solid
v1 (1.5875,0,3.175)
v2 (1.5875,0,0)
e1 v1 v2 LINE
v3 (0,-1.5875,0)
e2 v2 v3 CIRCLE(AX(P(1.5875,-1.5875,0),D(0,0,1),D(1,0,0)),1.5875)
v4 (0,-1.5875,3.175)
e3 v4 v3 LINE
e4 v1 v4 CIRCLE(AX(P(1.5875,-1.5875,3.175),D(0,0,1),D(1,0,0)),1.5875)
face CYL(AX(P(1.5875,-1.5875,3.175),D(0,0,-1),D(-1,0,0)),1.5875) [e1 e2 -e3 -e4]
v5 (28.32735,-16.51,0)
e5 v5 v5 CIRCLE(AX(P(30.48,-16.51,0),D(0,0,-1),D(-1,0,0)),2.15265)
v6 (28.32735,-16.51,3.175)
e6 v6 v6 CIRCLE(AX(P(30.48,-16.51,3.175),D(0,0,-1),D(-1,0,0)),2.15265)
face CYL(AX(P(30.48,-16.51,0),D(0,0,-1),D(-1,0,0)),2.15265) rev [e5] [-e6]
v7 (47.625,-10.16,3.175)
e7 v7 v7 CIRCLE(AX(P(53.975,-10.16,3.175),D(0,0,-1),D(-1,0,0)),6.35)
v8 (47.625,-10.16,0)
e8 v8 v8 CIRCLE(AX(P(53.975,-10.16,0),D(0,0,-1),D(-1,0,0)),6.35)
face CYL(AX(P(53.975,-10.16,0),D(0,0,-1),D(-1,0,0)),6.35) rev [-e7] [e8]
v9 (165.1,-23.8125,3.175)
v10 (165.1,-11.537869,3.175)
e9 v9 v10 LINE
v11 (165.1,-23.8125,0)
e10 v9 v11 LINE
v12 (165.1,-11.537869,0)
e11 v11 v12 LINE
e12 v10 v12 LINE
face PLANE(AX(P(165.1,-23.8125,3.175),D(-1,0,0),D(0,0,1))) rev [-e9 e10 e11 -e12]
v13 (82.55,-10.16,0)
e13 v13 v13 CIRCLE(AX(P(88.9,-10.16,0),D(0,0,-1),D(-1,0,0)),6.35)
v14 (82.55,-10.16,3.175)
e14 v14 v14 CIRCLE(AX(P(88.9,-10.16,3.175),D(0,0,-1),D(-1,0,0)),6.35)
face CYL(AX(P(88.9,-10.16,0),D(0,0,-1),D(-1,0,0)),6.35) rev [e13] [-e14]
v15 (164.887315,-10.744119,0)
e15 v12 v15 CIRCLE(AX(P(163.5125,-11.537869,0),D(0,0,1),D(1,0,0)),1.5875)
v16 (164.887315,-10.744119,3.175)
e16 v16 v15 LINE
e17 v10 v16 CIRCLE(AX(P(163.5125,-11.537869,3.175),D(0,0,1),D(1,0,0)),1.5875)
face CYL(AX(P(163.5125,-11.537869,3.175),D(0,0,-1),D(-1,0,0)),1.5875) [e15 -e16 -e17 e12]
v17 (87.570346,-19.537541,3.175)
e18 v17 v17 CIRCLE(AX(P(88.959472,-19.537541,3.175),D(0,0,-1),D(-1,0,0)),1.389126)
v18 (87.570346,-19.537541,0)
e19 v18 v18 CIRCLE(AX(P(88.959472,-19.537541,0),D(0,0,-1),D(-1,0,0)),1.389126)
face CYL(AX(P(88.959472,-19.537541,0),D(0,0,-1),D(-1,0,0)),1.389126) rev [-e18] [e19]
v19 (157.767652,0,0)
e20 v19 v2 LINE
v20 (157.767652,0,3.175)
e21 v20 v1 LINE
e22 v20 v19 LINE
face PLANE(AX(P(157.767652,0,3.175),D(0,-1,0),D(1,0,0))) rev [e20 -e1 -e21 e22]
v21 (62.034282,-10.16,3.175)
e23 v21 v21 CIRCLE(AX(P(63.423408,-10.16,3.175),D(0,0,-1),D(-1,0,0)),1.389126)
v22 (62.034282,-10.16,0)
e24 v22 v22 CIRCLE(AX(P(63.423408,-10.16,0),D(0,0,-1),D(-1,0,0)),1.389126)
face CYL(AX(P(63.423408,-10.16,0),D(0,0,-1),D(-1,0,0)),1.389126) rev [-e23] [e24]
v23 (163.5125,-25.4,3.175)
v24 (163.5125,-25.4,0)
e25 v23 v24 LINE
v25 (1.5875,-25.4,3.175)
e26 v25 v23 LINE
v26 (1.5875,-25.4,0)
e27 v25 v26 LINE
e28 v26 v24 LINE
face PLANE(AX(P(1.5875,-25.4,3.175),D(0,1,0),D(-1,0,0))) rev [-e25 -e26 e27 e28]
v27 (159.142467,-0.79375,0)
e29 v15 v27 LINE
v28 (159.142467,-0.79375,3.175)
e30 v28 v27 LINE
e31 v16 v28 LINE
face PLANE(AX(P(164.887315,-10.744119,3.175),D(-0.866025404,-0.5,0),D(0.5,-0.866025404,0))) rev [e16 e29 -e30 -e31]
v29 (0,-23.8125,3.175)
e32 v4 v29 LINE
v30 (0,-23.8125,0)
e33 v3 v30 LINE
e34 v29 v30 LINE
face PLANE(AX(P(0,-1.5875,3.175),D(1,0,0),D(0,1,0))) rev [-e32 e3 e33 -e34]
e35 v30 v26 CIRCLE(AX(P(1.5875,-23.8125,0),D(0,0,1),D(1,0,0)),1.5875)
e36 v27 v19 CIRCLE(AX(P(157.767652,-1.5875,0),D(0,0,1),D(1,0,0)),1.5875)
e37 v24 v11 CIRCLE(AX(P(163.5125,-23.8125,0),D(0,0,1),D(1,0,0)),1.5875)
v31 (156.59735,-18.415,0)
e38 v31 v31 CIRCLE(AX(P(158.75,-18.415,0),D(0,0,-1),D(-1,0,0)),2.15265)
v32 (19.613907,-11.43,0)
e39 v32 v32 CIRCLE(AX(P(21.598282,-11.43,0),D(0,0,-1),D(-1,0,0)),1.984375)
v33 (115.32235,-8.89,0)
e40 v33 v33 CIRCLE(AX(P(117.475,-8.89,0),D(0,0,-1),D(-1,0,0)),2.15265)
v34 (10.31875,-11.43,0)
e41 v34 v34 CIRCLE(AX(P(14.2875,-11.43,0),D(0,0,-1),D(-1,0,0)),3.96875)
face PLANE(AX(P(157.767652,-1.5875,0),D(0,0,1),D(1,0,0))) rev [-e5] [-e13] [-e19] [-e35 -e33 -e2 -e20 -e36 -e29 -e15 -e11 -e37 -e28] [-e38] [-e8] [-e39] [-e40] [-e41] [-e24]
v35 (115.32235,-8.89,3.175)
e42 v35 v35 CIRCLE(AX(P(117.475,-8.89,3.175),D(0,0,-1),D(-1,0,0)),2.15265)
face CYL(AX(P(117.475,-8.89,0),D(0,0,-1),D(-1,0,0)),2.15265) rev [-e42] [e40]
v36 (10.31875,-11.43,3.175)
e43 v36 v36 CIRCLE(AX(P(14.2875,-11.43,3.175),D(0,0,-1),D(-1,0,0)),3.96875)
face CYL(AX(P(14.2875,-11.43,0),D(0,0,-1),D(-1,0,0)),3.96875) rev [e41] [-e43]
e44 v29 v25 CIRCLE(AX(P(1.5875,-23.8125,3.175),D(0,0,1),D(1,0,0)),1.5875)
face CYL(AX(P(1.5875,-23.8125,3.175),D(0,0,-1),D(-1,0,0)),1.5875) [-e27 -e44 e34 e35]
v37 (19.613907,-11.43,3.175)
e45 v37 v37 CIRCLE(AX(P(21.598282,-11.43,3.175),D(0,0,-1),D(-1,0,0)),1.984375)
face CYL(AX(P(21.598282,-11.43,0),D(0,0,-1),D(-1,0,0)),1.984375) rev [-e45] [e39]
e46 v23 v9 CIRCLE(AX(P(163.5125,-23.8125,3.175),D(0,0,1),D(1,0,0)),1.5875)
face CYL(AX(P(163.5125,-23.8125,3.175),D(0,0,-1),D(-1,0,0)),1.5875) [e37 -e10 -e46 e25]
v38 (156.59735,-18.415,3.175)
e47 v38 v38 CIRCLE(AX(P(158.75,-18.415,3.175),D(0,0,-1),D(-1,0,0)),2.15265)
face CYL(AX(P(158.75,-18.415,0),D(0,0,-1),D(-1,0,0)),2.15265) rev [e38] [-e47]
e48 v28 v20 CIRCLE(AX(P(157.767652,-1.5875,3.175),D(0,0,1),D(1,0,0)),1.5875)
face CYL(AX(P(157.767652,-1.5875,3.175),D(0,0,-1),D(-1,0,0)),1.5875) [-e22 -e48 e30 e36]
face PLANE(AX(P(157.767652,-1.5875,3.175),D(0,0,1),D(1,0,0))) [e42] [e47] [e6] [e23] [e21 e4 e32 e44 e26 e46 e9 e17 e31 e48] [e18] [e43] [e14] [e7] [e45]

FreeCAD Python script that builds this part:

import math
import FreeCAD as App
import Part
import Sketcher

V = App.Vector
Q = App.Units.Quantity

doc = App.newDocument("Part")
body = doc.addObject("PartDesign::Body", "Body")

sketch1 = body.newObject("Sketcher::SketchObject", "Sketch")
sketch1.AttachmentSupport = (doc.getObject("XY_Plane"), [""])
sketch1.MapMode = "FlatFace"
sketch1.addGeometry(Part.LineSegment(V(157.767652, 0, 0), V(1.5875, 0, 0)), False)
sketch1.addGeometry(Part.ArcOfCircle(Part.Circle(V(1.5875, -1.5875, 0), V(0, 0, 1), 1.5875), math.radians(90), math.radians(180)), False)
sketch1.addGeometry(Part.LineSegment(V(0, -1.5875, 0), V(0, -23.8125, 0)), False)
sketch1.addGeometry(Part.ArcOfCircle(Part.Circle(V(1.5875, -23.8125, 0), V(0, 0, 1), 1.5875), math.radians(180), math.radians(270)), False)
sketch1.addGeometry(Part.LineSegment(V(1.5875, -25.4, 0), V(163.5125, -25.4, 0)), False)
sketch1.addGeometry(Part.ArcOfCircle(Part.Circle(V(163.5125, -23.8125, 0), V(0, 0, 1), 1.5875), math.radians(-90), math.radians(0)), False)
sketch1.addGeometry(Part.LineSegment(V(165.1, -23.8125, 0), V(165.1, -11.537869, 0)), False)
sketch1.addGeometry(Part.ArcOfCircle(Part.Circle(V(163.5125, -11.537869, 0), V(0, 0, 1), 1.5875), math.radians(0), math.radians(30)), False)
sketch1.addGeometry(Part.LineSegment(V(164.887315, -10.744119, 0), V(159.142467, -0.79375, 0)), False)
sketch1.addGeometry(Part.ArcOfCircle(Part.Circle(V(157.767652, -1.5875, 0), V(0, 0, 1), 1.5875), math.radians(30), math.radians(90)), False)
sketch1.addConstraint(Sketcher.Constraint("Tangent", 0, 2, 1, 1))
sketch1.addConstraint(Sketcher.Constraint("Tangent", 1, 2, 2, 1))
sketch1.addConstraint(Sketcher.Constraint("Tangent", 2, 2, 3, 1))
sketch1.addConstraint(Sketcher.Constraint("Tangent", 3, 2, 4, 1))
sketch1.addConstraint(Sketcher.Constraint("Tangent", 4, 2, 5, 1))
sketch1.addConstraint(Sketcher.Constraint("Tangent", 5, 2, 6, 1))
sketch1.addConstraint(Sketcher.Constraint("Tangent", 6, 2, 7, 1))
sketch1.addConstraint(Sketcher.Constraint("Tangent", 7, 2, 8, 1))
sketch1.addConstraint(Sketcher.Constraint("Tangent", 8, 2, 9, 1))
sketch1.addConstraint(Sketcher.Constraint("Tangent", 9, 2, 0, 1))
sketch1.addConstraint(Sketcher.Constraint("Horizontal", 0))
sketch1.addConstraint(Sketcher.Constraint("Vertical", 2))
sketch1.addConstraint(Sketcher.Constraint("Horizontal", 4))
sketch1.addConstraint(Sketcher.Constraint("Vertical", 6))
sketch1.addConstraint(Sketcher.Constraint("Equal", 1, 3))
sketch1.addConstraint(Sketcher.Constraint("Equal", 3, 5))
sketch1.addConstraint(Sketcher.Constraint("Equal", 5, 7))
sketch1.addConstraint(Sketcher.Constraint("Equal", 7, 9))
sketch1.addConstraint(Sketcher.Constraint("PointOnObject", 0, 2, -1))
sketch1.addConstraint(Sketcher.Constraint("PointOnObject", 1, 2, -2))
sketch1.addConstraint(Sketcher.Constraint("DistanceY", 3, 2, -1, 1, Q("1 in")))
sketch1.addConstraint(Sketcher.Constraint("Angle", 8, Q("120 deg")))
sketch1.addConstraint(Sketcher.Constraint("Radius", 1, Q("0.0625 in")))
sketch1.addConstraint(Sketcher.Constraint("DistanceX", -1, 1, 5, 2, Q("6.5 in")))
sketch1.addConstraint(Sketcher.Constraint("DistanceX", 0, 2, 0, 1, Q("156.180152 mm")))
pad1 = body.newObject("PartDesign::Pad", "Pad")
pad1.Profile = sketch1
pad1.Length = Q("0.125 in")

sketch2 = body.newObject("Sketcher::SketchObject", "Sketch001")
sketch2.AttachmentSupport = (doc.getObject("XY_Plane"), [""])
sketch2.MapMode = "FlatFace"
sketch2.addGeometry(Part.Circle(V(53.975, -10.16, 0), V(0, 0, 1), 6.35), False)
sketch2.addGeometry(Part.Circle(V(88.9, -10.16, 0), V(0, 0, 1), 6.35), False)
sketch2.addConstraint(Sketcher.Constraint("Equal", 0, 1))
sketch2.addConstraint(Sketcher.Constraint("Horizontal", 0, 3, 1, 3))
sketch2.addConstraint(Sketcher.Constraint("Diameter", 0, Q("0.5 in")))
sketch2.addConstraint(Sketcher.Constraint("DistanceY", 0, 3, -1, 1, Q("0.4 in")))
sketch2.addConstraint(Sketcher.Constraint("DistanceX", -1, 1, 1, 3, Q("3.5 in")))
sketch2.addConstraint(Sketcher.Constraint("DistanceX", -1, 1, 0, 3, Q("2.125 in")))
doc.recompute()
hole = body.newObject("PartDesign::Hole", "Hole")
hole.Profile = sketch2
hole.ThreadType = "None"
hole.Diameter = Q("0.5 in")
hole.DepthType = "ThroughAll"
hole.Reversed = True

sketch3 = body.newObject("Sketcher::SketchObject", "Sketch002")
sketch3.AttachmentSupport = (doc.getObject("XY_Plane"), [""])
sketch3.MapMode = "FlatFace"
sketch3.addGeometry(Part.Circle(V(14.2875, -11.43, 0), V(0, 0, 1), 3.96875), False)
sketch3.addConstraint(Sketcher.Constraint("Diameter", 0, Q("0.3125 in")))
sketch3.addConstraint(Sketcher.Constraint("DistanceY", 0, 3, -1, 1, Q("0.45 in")))
sketch3.addConstraint(Sketcher.Constraint("DistanceX", -1, 1, 0, 3, Q("0.5625 in")))
doc.recompute()
hole2 = body.newObject("PartDesign::Hole", "Hole001")
hole2.Profile = sketch3
hole2.ThreadType = "None"
hole2.Diameter = Q("0.3125 in")
hole2.DepthType = "ThroughAll"
hole2.Reversed = True

sketch4 = body.newObject("Sketcher::SketchObject", "Sketch003")
sketch4.AttachmentSupport = (doc.getObject("XY_Plane"), [""])
sketch4.MapMode = "FlatFace"
sketch4.addGeometry(Part.Circle(V(21.598282, -11.43, 0), V(0, 0, 1), 1.984375), False)
sketch4.addConstraint(Sketcher.Constraint("Diameter", 0, Q("0.15625 in")))
sketch4.addConstraint(Sketcher.Constraint("DistanceY", 0, 3, -1, 1, Q("0.45 in")))
sketch4.addConstraint(Sketcher.Constraint("DistanceX", -1, 1, 0, 3, Q("21.598282 mm")))
doc.recompute()
hole3 = body.newObject("PartDesign::Hole", "Hole002")
hole3.Profile = sketch4
hole3.ThreadType = "None"
hole3.Diameter = Q("0.15625 in")
hole3.DepthType = "ThroughAll"
hole3.Reversed = True

sketch5 = body.newObject("Sketcher::SketchObject", "Sketch004")
sketch5.AttachmentSupport = (doc.getObject("XY_Plane"), [""])
sketch5.MapMode = "FlatFace"
sketch5.addGeometry(Part.Circle(V(88.959472, -19.537541, 0), V(0, 0, 1), 1.389126), False)
sketch5.addGeometry(Part.Circle(V(63.423408, -10.16, 0), V(0, 0, 1), 1.389126), False)
sketch5.addConstraint(Sketcher.Constraint("Equal", 0, 1))
sketch5.addConstraint(Sketcher.Constraint("DistanceY", 1, 3, -1, 1, Q("0.4 in")))
sketch5.addConstraint(Sketcher.Constraint("Diameter", 0, Q("2.778252 mm")))
sketch5.addConstraint(Sketcher.Constraint("DistanceX", -1, 1, 0, 3, Q("88.959472 mm")))
sketch5.addConstraint(Sketcher.Constraint("DistanceY", 0, 3, -1, 1, Q("19.537541 mm")))
sketch5.addConstraint(Sketcher.Constraint("DistanceX", -1, 1, 1, 3, Q("63.423408 mm")))
doc.recompute()
hole4 = body.newObject("PartDesign::Hole", "Hole003")
hole4.Profile = sketch5
hole4.ThreadType = "None"
hole4.Diameter = 2.778252
hole4.DepthType = "ThroughAll"
hole4.Reversed = True

sketch6 = body.newObject("Sketcher::SketchObject", "Sketch005")
sketch6.AttachmentSupport = (doc.getObject("XY_Plane"), [""])
sketch6.MapMode = "FlatFace"
sketch6.addGeometry(Part.Circle(V(158.75, -18.415, 0), V(0, 0, 1), 2.15265), False)
sketch6.addGeometry(Part.Circle(V(117.475, -8.89, 0), V(0, 0, 1), 2.15265), False)
sketch6.addGeometry(Part.Circle(V(30.48, -16.51, 0), V(0, 0, 1), 2.15265), False)
sketch6.addConstraint(Sketcher.Constraint("Equal", 0, 1))
sketch6.addConstraint(Sketcher.Constraint("Equal", 1, 2))
sketch6.addConstraint(Sketcher.Constraint("Diameter", 0, Q("0.1695 in")))
sketch6.addConstraint(Sketcher.Constraint("DistanceX", -1, 1, 2, 3, Q("1.2 in")))
sketch6.addConstraint(Sketcher.Constraint("DistanceY", 2, 3, 1, 3, Q("0.3 in")))
sketch6.addConstraint(Sketcher.Constraint("DistanceX", -1, 1, 0, 3, Q("6.25 in")))
sketch6.addConstraint(Sketcher.Constraint("DistanceY", 1, 3, -1, 1, Q("0.35 in")))
sketch6.addConstraint(Sketcher.Constraint("DistanceY", 0, 3, -1, 1, Q("0.725 in")))
sketch6.addConstraint(Sketcher.Constraint("DistanceX", -1, 1, 1, 3, Q("4.625 in")))
doc.recompute()
hole5 = body.newObject("PartDesign::Hole", "Hole004")
hole5.Profile = sketch6
hole5.ThreadType = "None"
hole5.Diameter = Q("0.1695 in")
hole5.DepthType = "ThroughAll"
hole5.Reversed = True

doc.recompute()
